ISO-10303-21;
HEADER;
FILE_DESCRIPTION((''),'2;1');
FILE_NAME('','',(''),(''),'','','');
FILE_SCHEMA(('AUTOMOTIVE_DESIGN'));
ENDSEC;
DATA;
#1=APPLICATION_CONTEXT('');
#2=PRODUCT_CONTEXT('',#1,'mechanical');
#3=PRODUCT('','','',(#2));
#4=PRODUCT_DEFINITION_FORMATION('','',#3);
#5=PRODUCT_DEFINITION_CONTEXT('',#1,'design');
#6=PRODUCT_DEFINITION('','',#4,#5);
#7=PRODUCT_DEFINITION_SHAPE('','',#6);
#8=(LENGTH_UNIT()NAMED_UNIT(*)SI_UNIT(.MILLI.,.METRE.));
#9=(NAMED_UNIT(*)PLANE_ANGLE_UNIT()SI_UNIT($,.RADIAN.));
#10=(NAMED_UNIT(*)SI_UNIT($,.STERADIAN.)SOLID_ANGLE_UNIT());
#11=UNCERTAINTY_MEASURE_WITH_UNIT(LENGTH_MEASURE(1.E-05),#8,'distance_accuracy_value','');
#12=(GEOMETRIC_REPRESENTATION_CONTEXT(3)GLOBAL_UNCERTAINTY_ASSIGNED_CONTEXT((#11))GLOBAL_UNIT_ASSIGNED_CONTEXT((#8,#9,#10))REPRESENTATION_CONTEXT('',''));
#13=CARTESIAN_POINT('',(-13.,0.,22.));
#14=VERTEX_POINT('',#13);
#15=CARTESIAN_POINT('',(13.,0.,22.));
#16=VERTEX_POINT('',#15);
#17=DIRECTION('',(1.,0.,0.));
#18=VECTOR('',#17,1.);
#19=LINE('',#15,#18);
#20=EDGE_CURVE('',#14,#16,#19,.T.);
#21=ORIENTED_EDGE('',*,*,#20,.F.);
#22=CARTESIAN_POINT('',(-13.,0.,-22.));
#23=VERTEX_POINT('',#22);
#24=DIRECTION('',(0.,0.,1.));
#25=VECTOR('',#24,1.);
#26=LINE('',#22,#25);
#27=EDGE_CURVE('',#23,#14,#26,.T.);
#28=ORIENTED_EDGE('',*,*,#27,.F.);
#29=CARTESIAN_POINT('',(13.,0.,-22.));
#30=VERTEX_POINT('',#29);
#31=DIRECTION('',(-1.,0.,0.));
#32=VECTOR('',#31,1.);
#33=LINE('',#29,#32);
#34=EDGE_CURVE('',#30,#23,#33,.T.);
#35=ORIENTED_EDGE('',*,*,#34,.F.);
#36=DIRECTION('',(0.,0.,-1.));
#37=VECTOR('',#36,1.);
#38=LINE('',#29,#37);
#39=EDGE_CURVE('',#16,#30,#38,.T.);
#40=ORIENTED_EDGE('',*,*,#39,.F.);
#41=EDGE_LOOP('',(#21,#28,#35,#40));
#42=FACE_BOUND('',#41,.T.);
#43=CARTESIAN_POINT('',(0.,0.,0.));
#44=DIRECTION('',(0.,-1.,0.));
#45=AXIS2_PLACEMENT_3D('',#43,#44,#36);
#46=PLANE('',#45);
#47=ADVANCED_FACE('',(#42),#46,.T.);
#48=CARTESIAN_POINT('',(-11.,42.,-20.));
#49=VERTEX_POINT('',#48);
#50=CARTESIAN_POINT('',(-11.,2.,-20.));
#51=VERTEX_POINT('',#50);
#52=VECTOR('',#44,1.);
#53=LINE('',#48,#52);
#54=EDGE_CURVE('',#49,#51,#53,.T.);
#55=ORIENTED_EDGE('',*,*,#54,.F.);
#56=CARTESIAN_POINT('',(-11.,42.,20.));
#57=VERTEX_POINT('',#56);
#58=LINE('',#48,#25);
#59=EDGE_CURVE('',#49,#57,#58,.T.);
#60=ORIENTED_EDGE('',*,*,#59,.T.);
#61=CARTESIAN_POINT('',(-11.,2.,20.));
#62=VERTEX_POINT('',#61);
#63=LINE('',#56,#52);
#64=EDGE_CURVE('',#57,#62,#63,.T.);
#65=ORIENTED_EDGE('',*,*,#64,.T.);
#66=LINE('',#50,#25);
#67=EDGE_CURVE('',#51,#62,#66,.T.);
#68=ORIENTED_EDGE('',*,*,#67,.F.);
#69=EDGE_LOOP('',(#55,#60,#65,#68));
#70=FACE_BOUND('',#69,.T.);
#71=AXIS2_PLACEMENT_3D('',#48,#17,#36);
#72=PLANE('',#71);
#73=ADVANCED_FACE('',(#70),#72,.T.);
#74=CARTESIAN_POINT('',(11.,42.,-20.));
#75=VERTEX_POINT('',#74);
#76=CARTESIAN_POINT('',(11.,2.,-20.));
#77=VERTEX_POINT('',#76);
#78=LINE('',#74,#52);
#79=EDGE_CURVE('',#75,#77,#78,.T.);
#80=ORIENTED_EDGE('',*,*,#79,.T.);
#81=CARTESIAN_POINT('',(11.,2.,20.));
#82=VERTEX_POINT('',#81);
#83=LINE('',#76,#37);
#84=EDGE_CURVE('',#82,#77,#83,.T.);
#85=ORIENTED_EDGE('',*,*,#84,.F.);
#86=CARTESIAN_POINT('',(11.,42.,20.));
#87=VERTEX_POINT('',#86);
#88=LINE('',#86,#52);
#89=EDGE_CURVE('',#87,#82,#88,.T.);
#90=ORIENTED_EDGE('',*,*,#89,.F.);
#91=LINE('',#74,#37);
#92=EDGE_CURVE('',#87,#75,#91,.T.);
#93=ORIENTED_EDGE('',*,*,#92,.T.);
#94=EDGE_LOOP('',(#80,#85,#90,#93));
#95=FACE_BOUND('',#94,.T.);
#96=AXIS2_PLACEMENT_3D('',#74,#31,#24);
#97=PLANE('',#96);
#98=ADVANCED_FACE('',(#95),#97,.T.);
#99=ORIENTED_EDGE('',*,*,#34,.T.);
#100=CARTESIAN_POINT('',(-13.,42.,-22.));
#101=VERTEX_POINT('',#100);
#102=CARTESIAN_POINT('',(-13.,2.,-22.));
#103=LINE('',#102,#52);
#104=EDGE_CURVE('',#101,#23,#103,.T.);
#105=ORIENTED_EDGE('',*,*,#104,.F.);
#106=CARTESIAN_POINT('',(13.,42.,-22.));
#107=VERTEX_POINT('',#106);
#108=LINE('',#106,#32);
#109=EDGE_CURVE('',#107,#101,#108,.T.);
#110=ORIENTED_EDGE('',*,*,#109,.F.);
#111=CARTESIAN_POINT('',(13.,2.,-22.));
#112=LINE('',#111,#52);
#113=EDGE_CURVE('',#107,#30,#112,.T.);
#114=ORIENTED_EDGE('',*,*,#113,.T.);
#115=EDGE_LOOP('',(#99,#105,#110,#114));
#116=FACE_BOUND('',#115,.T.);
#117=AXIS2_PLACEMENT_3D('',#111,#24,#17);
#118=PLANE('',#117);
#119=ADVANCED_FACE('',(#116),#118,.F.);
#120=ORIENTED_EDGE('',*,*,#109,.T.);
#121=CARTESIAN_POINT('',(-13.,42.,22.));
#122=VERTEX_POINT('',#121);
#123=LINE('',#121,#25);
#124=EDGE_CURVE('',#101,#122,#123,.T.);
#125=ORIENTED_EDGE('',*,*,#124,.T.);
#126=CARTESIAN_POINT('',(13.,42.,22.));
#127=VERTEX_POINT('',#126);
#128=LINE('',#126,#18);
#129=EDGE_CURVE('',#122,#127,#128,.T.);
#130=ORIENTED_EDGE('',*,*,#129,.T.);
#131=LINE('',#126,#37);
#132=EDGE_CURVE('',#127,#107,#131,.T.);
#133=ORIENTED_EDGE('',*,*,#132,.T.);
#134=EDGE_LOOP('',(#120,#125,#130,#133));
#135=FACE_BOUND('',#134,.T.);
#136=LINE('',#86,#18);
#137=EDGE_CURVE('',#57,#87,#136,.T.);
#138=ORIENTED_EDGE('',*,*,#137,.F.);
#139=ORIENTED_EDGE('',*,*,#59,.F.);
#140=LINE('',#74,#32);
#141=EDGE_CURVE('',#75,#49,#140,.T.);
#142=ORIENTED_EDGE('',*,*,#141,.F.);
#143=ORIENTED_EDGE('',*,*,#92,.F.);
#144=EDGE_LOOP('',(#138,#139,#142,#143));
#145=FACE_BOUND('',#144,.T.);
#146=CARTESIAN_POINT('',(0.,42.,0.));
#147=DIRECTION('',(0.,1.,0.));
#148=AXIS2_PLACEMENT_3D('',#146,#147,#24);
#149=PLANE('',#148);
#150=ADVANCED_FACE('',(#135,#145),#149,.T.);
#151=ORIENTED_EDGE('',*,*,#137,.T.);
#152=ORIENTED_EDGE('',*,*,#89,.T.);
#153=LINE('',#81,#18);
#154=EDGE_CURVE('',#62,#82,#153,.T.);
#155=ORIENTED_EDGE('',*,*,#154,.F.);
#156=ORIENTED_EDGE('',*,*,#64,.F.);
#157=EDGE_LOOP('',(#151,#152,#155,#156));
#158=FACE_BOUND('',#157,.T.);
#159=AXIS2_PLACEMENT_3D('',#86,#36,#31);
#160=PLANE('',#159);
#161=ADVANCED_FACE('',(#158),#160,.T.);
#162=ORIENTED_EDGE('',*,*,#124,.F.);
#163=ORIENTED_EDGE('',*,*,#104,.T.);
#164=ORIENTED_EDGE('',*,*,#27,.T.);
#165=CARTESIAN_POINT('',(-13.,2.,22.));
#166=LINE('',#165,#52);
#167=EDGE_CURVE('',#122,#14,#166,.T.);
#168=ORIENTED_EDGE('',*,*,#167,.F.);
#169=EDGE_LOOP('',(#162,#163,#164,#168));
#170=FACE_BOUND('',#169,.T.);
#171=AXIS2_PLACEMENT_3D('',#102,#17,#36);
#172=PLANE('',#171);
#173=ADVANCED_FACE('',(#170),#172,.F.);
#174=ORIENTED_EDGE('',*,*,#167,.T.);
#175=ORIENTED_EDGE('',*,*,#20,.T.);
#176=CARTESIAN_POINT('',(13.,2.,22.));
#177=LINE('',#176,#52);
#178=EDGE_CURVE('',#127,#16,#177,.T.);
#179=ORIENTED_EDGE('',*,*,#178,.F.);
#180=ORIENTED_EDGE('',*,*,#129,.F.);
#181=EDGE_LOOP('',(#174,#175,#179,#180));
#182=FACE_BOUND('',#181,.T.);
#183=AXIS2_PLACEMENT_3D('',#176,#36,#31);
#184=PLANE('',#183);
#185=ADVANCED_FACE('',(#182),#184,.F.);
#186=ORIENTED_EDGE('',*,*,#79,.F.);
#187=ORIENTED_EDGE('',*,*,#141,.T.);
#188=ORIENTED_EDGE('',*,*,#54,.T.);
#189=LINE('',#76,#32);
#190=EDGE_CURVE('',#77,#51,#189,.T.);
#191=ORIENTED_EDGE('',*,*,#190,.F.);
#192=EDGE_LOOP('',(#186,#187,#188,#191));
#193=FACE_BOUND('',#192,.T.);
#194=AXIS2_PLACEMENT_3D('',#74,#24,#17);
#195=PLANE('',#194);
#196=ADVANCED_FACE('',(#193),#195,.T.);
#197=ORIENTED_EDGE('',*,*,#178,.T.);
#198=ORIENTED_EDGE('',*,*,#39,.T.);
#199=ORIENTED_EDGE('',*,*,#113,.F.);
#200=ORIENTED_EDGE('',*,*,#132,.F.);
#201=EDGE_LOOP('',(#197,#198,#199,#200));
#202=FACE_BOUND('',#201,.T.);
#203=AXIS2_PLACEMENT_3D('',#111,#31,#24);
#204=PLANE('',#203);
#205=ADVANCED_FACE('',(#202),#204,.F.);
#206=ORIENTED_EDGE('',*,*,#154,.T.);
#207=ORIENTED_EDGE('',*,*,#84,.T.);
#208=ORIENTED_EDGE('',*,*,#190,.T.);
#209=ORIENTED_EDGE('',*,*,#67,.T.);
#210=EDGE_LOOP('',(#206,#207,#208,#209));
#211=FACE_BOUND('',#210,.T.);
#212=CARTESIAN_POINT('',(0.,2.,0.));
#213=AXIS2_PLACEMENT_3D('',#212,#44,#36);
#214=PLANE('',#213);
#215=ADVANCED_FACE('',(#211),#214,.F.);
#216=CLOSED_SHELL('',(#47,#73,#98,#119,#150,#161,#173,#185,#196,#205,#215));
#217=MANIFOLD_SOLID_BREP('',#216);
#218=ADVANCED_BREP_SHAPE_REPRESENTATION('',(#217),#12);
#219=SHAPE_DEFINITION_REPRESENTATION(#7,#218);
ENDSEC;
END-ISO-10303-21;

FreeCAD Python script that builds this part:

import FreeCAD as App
import Part
import Sketcher
Q = App.Units.Quantity


def add_polygon(sketch, points):
    """Adds a closed chain of lines whose ends are joined by coincident constraints."""
    first, n = sketch.GeometryCount, len(points)
    for a, b in zip(points, points[1:] + points[:1]):
        sketch.addGeometry(Part.LineSegment(App.Vector(*a, 0), App.Vector(*b, 0)), False)
    for i in range(n):
        sketch.addConstraint(Sketcher.Constraint("Coincident", first + i, 2, first + (i + 1) % n, 1))

doc = App.newDocument("Part")
body = doc.addObject("PartDesign::Body", "Body")

# Sketch on XZ plane
sketch1 = body.newObject("Sketcher::SketchObject", "Sketch")
sketch1.AttachmentSupport = (doc.getObject("XZ_Plane"), [""])
sketch1.MapMode = "FlatFace"
add_polygon(sketch1, [(-13, -22), (-13, 22), (13, 22), (13, -22)])  # lines 0-3
sketch1.addConstraint([
    Sketcher.Constraint("Vertical", 0),
    Sketcher.Constraint("Horizontal", 1),
    Sketcher.Constraint("Vertical", 2),
    Sketcher.Constraint("Horizontal", 3),
    Sketcher.Constraint("Symmetric", 0, 2, 2, 2, -1, 1),
    Sketcher.Constraint("DistanceX", 1, 1, 1, 2, Q("26 mm")),
    Sketcher.Constraint("DistanceY", 0, 1, 0, 2, Q("44 mm")),
])
pad1 = body.newObject("PartDesign::Pad", "Pad")
pad1.Profile = sketch1
pad1.Length = 2
pad1.Reversed = True

# Sketch on XZ plane
sketch2 = body.newObject("Sketcher::SketchObject", "Sketch001")
sketch2.AttachmentSupport = (doc.getObject("XZ_Plane"), [""])
sketch2.MapMode = "FlatFace"
sketch2.AttachmentOffset = App.Placement(App.Vector(0, 0, -2), App.Rotation())
add_polygon(sketch2, [(-13, -22), (-13, 22), (13, 22), (13, -22)])  # lines 0-3
add_polygon(sketch2, [(11, 20), (-11, 20), (-11, -20), (11, -20)])  # lines 4-7
sketch2.addConstraint([
    Sketcher.Constraint("Vertical", 0),
    Sketcher.Constraint("Horizontal", 1),
    Sketcher.Constraint("Vertical", 2),
    Sketcher.Constraint("Horizontal", 3),
    Sketcher.Constraint("Horizontal", 4),
    Sketcher.Constraint("Vertical", 5),
    Sketcher.Constraint("Horizontal", 6),
    Sketcher.Constraint("Vertical", 7),
    Sketcher.Constraint("Symmetric", 0, 2, 2, 2, -1, 1),
    Sketcher.Constraint("Symmetric", 4, 2, 6, 2, -1, 1),
    Sketcher.Constraint("DistanceX", 1, 1, 1, 2, Q("26 mm")),
    Sketcher.Constraint("DistanceX", 4, 2, 4, 1, Q("22 mm")),
    Sketcher.Constraint("DistanceY", 0, 1, 0, 2, Q("44 mm")),
    Sketcher.Constraint("DistanceY", 5, 2, 5, 1, Q("40 mm")),
])
pad2 = body.newObject("PartDesign::Pad", "Pad001")
pad2.Profile = sketch2
pad2.Length = 40
pad2.Reversed = True

doc.recompute()
